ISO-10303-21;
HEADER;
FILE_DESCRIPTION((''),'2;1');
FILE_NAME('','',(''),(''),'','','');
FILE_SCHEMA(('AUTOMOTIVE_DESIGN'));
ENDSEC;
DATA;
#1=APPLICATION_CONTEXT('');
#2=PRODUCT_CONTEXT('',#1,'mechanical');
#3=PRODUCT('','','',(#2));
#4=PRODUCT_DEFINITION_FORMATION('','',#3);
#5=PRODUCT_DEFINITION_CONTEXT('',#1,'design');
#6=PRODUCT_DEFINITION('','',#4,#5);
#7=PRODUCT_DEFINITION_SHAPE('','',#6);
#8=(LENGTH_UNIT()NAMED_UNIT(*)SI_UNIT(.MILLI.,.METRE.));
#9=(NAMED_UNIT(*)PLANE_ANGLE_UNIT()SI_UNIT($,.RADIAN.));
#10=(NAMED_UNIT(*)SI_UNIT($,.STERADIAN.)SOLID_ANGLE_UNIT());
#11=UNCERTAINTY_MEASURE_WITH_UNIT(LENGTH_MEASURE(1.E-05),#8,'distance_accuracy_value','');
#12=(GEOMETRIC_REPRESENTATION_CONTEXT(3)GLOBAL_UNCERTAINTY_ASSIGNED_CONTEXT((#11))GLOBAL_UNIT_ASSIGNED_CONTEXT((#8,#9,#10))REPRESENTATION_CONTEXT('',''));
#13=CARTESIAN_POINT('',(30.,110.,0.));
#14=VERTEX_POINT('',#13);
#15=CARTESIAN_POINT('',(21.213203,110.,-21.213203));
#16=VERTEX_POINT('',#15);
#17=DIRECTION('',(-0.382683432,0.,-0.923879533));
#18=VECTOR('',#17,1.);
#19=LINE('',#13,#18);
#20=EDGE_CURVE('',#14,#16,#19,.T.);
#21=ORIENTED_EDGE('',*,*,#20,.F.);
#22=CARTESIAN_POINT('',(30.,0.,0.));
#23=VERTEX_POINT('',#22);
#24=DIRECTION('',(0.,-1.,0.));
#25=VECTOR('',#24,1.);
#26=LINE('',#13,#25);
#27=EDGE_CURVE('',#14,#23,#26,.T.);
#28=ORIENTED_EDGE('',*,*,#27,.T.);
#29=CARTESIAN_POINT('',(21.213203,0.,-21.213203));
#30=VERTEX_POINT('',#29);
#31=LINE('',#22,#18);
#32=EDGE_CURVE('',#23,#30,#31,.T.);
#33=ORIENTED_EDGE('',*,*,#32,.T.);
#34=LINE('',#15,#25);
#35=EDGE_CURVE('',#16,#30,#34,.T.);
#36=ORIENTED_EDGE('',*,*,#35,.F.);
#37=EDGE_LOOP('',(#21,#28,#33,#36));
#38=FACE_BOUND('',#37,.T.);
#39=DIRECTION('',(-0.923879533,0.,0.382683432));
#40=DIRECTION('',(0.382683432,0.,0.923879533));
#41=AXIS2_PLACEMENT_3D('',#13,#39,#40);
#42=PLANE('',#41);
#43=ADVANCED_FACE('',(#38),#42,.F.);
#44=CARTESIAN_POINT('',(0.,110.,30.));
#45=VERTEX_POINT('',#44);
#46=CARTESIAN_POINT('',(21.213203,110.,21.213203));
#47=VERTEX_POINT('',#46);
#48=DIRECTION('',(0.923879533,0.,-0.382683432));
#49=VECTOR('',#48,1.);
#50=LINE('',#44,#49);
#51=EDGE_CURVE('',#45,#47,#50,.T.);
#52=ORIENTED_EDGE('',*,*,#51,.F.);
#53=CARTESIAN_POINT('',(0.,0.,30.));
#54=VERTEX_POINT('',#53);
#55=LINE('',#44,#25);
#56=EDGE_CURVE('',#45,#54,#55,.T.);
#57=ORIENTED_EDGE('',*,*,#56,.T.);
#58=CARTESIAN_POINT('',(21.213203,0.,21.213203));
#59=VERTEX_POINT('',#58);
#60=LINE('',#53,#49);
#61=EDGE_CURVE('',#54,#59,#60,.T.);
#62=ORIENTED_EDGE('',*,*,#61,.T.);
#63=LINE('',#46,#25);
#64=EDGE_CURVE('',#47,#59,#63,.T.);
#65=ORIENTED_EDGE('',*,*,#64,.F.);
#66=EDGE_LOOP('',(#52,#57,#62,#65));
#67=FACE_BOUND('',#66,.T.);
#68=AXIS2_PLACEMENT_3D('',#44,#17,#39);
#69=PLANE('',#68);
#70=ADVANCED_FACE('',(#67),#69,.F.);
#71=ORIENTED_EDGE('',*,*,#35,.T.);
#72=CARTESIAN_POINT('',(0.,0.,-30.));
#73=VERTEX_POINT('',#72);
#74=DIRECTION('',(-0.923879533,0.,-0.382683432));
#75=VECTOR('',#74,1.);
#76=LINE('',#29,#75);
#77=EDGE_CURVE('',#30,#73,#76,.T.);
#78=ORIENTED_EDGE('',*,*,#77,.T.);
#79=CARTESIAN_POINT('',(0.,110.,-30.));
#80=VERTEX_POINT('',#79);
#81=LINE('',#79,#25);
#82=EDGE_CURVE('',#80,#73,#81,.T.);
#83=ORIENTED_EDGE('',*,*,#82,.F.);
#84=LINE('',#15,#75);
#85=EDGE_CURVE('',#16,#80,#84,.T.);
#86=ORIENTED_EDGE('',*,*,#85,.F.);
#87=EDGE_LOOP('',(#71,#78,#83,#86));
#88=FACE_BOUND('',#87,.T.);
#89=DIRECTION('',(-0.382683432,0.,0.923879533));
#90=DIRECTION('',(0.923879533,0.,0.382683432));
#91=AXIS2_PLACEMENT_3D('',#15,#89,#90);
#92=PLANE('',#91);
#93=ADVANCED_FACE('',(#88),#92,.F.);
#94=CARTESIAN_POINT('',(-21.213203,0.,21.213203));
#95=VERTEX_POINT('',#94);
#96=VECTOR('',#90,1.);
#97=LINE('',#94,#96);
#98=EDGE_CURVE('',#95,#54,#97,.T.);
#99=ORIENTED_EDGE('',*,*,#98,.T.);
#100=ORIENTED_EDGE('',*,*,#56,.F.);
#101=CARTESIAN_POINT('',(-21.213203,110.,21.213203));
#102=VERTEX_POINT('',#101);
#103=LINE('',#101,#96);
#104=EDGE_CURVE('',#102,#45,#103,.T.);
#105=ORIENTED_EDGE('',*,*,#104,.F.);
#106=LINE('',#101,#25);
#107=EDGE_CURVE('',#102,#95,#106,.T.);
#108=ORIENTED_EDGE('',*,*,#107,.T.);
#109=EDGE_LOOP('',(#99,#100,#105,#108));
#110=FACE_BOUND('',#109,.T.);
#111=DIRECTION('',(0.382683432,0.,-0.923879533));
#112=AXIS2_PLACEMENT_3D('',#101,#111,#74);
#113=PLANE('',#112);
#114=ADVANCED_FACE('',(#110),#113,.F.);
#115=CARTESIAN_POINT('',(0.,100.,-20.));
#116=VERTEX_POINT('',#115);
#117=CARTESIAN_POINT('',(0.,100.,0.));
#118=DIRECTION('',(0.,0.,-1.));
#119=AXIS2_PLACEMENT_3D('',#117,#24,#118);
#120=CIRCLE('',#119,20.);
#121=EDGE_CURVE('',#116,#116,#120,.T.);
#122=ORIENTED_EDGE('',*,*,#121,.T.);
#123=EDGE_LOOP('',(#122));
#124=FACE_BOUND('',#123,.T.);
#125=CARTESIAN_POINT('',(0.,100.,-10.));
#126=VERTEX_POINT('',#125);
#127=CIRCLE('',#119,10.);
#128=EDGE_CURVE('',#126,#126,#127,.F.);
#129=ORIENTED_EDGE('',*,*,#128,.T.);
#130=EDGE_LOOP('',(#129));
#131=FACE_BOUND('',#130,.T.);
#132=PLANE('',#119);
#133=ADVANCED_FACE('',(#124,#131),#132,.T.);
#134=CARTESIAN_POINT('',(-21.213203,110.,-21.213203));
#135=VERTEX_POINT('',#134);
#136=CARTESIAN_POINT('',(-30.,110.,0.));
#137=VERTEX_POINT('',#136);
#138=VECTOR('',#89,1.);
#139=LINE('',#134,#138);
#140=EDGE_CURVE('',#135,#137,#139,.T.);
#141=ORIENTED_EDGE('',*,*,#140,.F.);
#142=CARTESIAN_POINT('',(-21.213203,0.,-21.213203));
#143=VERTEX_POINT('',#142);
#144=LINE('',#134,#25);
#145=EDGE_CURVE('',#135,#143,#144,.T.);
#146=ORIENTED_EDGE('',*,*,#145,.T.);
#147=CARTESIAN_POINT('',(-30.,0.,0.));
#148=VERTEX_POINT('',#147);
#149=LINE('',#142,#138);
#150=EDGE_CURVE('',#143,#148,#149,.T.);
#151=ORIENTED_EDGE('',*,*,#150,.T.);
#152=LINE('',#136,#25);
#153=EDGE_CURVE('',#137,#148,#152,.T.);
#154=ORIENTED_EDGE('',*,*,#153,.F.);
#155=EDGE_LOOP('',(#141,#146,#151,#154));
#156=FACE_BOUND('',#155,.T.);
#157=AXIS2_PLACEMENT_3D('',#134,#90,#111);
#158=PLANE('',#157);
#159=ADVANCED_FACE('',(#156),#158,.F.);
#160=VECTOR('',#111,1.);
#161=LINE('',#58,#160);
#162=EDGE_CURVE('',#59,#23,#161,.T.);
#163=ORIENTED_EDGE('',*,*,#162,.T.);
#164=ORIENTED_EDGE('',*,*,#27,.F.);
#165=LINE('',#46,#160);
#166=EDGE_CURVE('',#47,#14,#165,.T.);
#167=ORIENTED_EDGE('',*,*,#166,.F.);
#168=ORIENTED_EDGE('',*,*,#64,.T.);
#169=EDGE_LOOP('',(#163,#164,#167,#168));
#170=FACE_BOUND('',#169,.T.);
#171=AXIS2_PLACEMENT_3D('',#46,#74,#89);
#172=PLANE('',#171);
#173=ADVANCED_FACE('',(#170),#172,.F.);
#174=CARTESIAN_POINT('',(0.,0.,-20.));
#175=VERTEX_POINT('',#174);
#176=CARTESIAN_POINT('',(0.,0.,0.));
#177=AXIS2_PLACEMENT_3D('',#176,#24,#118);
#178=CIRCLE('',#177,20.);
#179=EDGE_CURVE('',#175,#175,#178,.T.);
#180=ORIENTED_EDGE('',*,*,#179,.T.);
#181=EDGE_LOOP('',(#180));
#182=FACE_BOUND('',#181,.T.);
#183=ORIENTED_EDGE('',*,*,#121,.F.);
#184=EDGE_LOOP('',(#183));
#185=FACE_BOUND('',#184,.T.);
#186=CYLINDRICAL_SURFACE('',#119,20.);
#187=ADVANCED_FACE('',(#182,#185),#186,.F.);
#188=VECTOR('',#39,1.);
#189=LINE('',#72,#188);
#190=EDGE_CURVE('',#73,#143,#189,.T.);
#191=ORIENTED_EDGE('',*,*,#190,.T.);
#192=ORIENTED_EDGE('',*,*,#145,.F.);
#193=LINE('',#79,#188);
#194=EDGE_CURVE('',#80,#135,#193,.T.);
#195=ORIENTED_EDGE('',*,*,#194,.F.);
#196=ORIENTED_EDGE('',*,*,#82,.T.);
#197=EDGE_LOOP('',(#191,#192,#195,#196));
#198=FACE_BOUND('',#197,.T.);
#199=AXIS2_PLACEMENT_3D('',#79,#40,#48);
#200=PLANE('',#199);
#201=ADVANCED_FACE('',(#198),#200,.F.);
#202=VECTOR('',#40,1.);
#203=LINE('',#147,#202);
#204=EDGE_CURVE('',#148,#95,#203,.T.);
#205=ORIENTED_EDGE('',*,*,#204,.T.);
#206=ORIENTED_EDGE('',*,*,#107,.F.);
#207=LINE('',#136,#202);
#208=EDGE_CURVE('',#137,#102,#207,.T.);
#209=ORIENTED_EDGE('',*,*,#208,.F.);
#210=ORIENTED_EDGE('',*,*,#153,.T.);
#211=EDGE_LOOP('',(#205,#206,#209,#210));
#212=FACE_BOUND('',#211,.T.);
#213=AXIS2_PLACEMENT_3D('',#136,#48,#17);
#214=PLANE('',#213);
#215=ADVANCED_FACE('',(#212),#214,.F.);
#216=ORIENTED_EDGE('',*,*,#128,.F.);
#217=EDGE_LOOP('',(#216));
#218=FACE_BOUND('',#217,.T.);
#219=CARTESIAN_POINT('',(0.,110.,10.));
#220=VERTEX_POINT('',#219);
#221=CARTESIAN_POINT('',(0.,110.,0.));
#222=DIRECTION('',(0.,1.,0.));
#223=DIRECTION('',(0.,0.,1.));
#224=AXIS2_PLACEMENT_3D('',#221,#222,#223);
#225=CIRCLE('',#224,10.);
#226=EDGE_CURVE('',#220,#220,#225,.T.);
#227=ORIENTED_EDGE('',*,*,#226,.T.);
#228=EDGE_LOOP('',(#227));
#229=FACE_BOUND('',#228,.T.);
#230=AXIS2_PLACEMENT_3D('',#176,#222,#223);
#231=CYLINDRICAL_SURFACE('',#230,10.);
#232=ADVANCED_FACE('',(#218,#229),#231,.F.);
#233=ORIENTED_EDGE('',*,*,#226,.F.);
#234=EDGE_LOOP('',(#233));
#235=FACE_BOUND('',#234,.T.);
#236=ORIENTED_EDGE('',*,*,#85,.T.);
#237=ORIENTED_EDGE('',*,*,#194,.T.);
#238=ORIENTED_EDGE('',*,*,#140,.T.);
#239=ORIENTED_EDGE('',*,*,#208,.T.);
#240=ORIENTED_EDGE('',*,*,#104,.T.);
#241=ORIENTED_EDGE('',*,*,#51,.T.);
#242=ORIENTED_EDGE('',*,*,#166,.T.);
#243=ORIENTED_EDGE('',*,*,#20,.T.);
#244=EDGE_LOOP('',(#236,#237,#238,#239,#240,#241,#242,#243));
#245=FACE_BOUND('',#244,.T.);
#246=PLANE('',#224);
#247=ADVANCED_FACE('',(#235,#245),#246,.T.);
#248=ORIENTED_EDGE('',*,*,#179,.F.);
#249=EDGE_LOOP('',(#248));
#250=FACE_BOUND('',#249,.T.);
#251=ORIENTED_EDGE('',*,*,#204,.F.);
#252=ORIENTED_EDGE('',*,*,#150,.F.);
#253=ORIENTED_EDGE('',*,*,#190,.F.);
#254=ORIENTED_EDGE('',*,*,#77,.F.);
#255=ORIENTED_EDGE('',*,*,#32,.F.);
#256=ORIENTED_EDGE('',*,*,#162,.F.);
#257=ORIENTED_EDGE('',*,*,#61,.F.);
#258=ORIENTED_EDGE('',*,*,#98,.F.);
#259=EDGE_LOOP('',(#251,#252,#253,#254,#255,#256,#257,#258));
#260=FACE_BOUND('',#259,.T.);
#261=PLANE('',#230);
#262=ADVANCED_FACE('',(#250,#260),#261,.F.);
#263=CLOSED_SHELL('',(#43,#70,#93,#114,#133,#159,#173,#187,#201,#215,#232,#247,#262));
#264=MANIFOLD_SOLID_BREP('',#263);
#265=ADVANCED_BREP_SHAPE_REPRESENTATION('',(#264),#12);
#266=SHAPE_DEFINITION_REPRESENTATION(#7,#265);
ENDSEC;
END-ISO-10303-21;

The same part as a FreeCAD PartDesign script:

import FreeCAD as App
import Part
import Sketcher

V = App.Vector
Q = App.Units.Quantity


def add_polygon(sketch, points):
    """Adds a closed chain of lines whose ends are joined by coincident constraints."""
    first, n = sketch.GeometryCount, len(points)
    for a, b in zip(points, points[1:] + points[:1]):
        sketch.addGeometry(Part.LineSegment(App.Vector(*a, 0), App.Vector(*b, 0)), False)
    for i in range(n):
        sketch.addConstraint(Sketcher.Constraint("Coincident", first + i, 2, first + (i + 1) % n, 1))

doc = App.newDocument("Part")
body = doc.addObject("PartDesign::Body", "Body")

# Sketch on XZ plane
sketch1 = body.newObject("Sketcher::SketchObject", "Sketch")
sketch1.AttachmentSupport = (doc.getObject("XZ_Plane"), [""])
sketch1.MapMode = "FlatFace"
add_polygon(sketch1, [(30, 0), (21.213203, -21.213203), (0, -30), (-21.213203, -21.213203), (-30, 0), (-21.213203, 21.213203), (0, 30), (21.213203, 21.213203)])  # lines 0-7
sketch1.addConstraint(Sketcher.Constraint("Symmetric", 0, 2, 4, 2, -1, 1))
sketch1.addConstraint(Sketcher.Constraint("Symmetric", 1, 2, 5, 2, -1, 1))
sketch1.addConstraint(Sketcher.Constraint("Symmetric", 2, 2, 6, 2, -1, 1))
sketch1.addConstraint(Sketcher.Constraint("Symmetric", 3, 2, 7, 2, -1, 1))
sketch1.addConstraint(Sketcher.Constraint("Symmetric", 0, 2, 2, 2, -2))
sketch1.addConstraint(Sketcher.Constraint("PointOnObject", 1, 2, -2))
sketch1.addConstraint(Sketcher.Constraint("PointOnObject", 3, 2, -1))
sketch1.addConstraint(Sketcher.Constraint("Perpendicular", 0, 2))
sketch1.addConstraint(Sketcher.Constraint("Equal", 0, 1))
sketch1.addConstraint(Sketcher.Constraint("DistanceY", 1, 2, -1, 1, 30.0))
sketch1.addConstraint(Sketcher.Constraint("Angle", 0, Q("-112.5 deg")))
pad1 = body.newObject("PartDesign::Pad", "Pad")
pad1.Profile = sketch1
pad1.Length = 110
pad1.Reversed = True

# Sketch on XZ plane
sketch2 = body.newObject("Sketcher::SketchObject", "Sketch001")
sketch2.AttachmentSupport = (doc.getObject("XZ_Plane"), [""])
sketch2.MapMode = "FlatFace"
sketch2.AttachmentOffset = App.Placement(V(0, 0, -110), App.Rotation())
sketch2.addGeometry(Part.Circle(V(0, 0, 0), V(0, 0, 1), 10), False)
sketch2.addConstraint(Sketcher.Constraint("Coincident", 0, 3, -1, 1))
sketch2.addConstraint(Sketcher.Constraint("Diameter", 0, 20.0))
pocket1 = body.newObject("PartDesign::Pocket", "Pocket")
pocket1.Profile = sketch2
pocket1.Length = 110
pocket1.Reversed = True

# Sketch on XZ plane
sketch3 = body.newObject("Sketcher::SketchObject", "Sketch002")
sketch3.AttachmentSupport = (doc.getObject("XZ_Plane"), [""])
sketch3.MapMode = "FlatFace"
sketch3.addGeometry(Part.Circle(V(0, 0, 0), V(0, 0, 1), 20), False)
sketch3.addConstraint(Sketcher.Constraint("Coincident", 0, 3, -1, 1))
sketch3.addConstraint(Sketcher.Constraint("Diameter", 0, 40.0))
pocket2 = body.newObject("PartDesign::Pocket", "Pocket001")
pocket2.Profile = sketch3
pocket2.Length = 100

doc.recompute()
